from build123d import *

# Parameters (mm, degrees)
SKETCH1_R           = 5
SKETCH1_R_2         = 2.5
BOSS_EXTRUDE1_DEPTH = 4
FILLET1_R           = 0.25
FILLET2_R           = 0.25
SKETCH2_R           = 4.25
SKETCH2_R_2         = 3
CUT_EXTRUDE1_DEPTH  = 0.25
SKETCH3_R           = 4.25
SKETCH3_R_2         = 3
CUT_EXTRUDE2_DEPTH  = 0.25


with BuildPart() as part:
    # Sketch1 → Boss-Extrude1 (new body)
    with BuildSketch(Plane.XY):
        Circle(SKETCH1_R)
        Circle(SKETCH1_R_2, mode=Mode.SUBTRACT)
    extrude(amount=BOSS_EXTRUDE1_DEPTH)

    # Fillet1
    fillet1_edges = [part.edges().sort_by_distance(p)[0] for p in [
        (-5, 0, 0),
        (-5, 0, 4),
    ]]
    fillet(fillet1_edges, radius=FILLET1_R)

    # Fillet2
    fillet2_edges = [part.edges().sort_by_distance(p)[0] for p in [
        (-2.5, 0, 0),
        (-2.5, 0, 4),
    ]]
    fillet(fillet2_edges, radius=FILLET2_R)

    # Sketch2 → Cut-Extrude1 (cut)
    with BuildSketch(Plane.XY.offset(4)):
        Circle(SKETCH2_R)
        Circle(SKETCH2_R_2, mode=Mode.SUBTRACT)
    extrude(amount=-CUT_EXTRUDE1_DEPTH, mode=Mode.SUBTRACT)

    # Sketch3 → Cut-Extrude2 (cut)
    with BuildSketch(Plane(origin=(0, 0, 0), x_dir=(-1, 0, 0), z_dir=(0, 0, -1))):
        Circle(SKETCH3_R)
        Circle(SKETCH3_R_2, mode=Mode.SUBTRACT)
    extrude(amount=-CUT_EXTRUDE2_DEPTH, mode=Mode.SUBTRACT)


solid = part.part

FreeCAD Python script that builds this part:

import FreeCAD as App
import Part
import Sketcher


def edges_at(feature, points):
    """Names of the edges that pass closest to the given points."""
    edges = feature.Shape.Edges
    near = lambda p: min(range(len(edges)), key=lambda i: edges[i].distToShape(Part.Vertex(*p))[0])
    return sorted({f"Edge{near(p) + 1}" for p in points})

doc = App.newDocument("Part")
params = doc.addObject("Spreadsheet::Sheet", "Params")
for row, (alias, value) in enumerate([
    ("sketch1_diameter", "10 mm"),
    ("sketch1_diameter2", "5 mm"),
    ("pad1_length", "4 mm"),
    ("fillet_radius", "0.25 mm"),
    ("fillet2_radius", "0.25 mm"),
    ("sketch2_diameter", "6 mm"),
    ("sketch2_diameter2", "8.5 mm"),
    ("pocket1_length", "0.25 mm"),
    ("sketch3_diameter", "6 mm"),
    ("sketch3_diameter2", "8.5 mm"),
    ("pocket2_length", "0.25 mm"),
], start=1):
    params.set(f"A{row}", alias)
    params.set(f"B{row}", "=" + value)
    params.setAlias(f"B{row}", alias)

body = doc.addObject("PartDesign::Body", "Body")

sketch1 = body.newObject("Sketcher::SketchObject", "Sketch")
sketch1.AttachmentSupport = (doc.getObject("XY_Plane"), [""])
sketch1.MapMode = "FlatFace"
sketch1.addGeometry([
    Part.Circle(App.Vector(0, 0, 0), App.Vector(0, 0, 1), 5),
    Part.Circle(App.Vector(0, 0, 0), App.Vector(0, 0, 1), 2.5),
], False)
sketch1.addConstraint([
    Sketcher.Constraint("Coincident", 0, 3, -1, 1),
    Sketcher.Constraint("Coincident", 1, 3, -1, 1),
    Sketcher.Constraint("Diameter", 0, 10.0),
    Sketcher.Constraint("Diameter", 1, 5.0),
])
sketch1.setExpression("Constraints[2]", "Params.sketch1_diameter")
sketch1.setExpression("Constraints[3]", "Params.sketch1_diameter2")
pad1 = body.newObject("PartDesign::Pad", "Pad")
pad1.Profile = sketch1
pad1.setExpression("Length", "Params.pad1_length")
doc.recompute()

fillet = body.newObject("PartDesign::Fillet", "Fillet")
fillet.Base = (pad1, edges_at(pad1, [(-5, 0, 0), (-5, 0, 4)]))
fillet.setExpression("Radius", "Params.fillet_radius")
doc.recompute()

fillet2 = body.newObject("PartDesign::Fillet", "Fillet001")
fillet2.Base = (fillet, edges_at(fillet, [(-2.5, 0, 0), (-2.5, 0, 4)]))
fillet2.setExpression("Radius", "Params.fillet2_radius")

sketch2 = body.newObject("Sketcher::SketchObject", "Sketch001")
sketch2.AttachmentSupport = (doc.getObject("XY_Plane"), [""])
sketch2.MapMode = "FlatFace"
sketch2.AttachmentOffset = App.Placement(App.Vector(0, 0, 4), App.Rotation())
sketch2.addGeometry([
    Part.Circle(App.Vector(0, 0, 0), App.Vector(0, 0, 1), 4.2),
    Part.Circle(App.Vector(0, 0, 0), App.Vector(0, 0, 1), 3),
], False)
sketch2.addConstraint([
    Sketcher.Constraint("Coincident", 0, 3, -1, 1),
    Sketcher.Constraint("Coincident", 1, 3, -1, 1),
    Sketcher.Constraint("Diameter", 1, 6.0),
    Sketcher.Constraint("Diameter", 0, 8.5),
])
sketch2.setExpression("Constraints[2]", "Params.sketch2_diameter")
sketch2.setExpression("Constraints[3]", "Params.sketch2_diameter2")
pocket1 = body.newObject("PartDesign::Pocket", "Pocket")
pocket1.Profile = sketch2
pocket1.setExpression("Length", "Params.pocket1_length")

sketch3 = body.newObject("Sketcher::SketchObject", "Sketch002")
sketch3.AttachmentSupport = (doc.getObject("XY_Plane"), [""])
sketch3.MapMode = "FlatFace"
sketch3.addGeometry([
    Part.Circle(App.Vector(0, 0, 0), App.Vector(0, 0, 1), 4.2),
    Part.Circle(App.Vector(0, 0, 0), App.Vector(0, 0, 1), 3),
], False)
sketch3.addConstraint([
    Sketcher.Constraint("Coincident", 0, 3, -1, 1),
    Sketcher.Constraint("Coincident", 1, 3, -1, 1),
    Sketcher.Constraint("Diameter", 1, 6.0),
    Sketcher.Constraint("Diameter", 0, 8.5),
])
sketch3.setExpression("Constraints[2]", "Params.sketch3_diameter")
sketch3.setExpression("Constraints[3]", "Params.sketch3_diameter2")
pocket2 = body.newObject("PartDesign::Pocket", "Pocket001")
pocket2.Profile = sketch3
pocket2.setExpression("Length", "Params.pocket2_length")
pocket2.Reversed = True

doc.recompute()
